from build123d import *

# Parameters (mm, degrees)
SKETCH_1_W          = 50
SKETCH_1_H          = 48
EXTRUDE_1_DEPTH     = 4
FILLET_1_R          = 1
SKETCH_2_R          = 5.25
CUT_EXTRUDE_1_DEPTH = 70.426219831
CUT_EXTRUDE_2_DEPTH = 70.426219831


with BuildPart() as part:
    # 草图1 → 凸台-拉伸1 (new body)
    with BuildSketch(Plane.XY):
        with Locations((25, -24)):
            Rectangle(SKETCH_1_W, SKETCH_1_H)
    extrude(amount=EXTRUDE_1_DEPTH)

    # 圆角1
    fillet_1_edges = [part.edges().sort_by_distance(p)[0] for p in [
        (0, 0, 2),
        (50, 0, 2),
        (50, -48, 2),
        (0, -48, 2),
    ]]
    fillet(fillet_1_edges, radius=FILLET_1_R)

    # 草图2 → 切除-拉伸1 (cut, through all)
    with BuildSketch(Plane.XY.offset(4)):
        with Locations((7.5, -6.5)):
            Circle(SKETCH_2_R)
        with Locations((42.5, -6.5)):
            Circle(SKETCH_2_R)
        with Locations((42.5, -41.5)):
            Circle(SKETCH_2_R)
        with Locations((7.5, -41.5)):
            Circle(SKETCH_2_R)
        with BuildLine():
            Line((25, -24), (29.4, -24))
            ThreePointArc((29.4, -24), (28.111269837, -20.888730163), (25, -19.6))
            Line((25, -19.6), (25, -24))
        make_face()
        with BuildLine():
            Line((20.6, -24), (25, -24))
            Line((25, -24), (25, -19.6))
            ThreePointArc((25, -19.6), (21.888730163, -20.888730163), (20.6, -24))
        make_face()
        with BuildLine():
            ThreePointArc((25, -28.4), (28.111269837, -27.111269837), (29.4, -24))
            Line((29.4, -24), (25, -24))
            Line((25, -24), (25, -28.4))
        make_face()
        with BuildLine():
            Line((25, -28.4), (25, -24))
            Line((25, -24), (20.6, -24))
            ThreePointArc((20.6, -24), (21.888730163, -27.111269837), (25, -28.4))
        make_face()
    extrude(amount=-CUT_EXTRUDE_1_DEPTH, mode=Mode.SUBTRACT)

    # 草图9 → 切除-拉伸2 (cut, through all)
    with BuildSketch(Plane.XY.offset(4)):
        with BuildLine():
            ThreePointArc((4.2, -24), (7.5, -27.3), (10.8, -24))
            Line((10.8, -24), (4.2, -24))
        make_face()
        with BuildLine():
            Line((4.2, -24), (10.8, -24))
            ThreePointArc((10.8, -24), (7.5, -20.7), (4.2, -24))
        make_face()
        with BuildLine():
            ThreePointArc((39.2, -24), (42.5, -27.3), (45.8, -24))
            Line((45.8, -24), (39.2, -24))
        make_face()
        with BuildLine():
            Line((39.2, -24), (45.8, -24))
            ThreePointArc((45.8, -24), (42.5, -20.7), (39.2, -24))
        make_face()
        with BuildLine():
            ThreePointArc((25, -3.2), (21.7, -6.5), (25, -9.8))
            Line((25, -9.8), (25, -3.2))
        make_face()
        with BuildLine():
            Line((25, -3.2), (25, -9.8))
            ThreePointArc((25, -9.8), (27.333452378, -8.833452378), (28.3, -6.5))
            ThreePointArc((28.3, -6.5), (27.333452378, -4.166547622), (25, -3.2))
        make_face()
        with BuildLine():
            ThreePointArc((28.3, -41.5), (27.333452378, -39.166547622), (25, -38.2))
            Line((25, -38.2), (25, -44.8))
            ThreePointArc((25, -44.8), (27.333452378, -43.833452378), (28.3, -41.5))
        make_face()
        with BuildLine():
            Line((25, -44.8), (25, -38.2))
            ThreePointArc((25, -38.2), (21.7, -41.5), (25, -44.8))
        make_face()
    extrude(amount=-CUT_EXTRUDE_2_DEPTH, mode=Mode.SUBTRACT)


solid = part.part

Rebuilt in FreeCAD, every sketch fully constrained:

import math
import FreeCAD as App
import Part
import Sketcher

V = App.Vector


def edges_at(feature, points):
    """Names of the edges that pass closest to the given points."""
    edges = feature.Shape.Edges
    near = lambda p: min(range(len(edges)), key=lambda i: edges[i].distToShape(Part.Vertex(*p))[0])
    return sorted({f"Edge{near(p) + 1}" for p in points})


def add_polygon(sketch, points):
    """Adds a closed chain of lines whose ends are joined by coincident constraints."""
    first, n = sketch.GeometryCount, len(points)
    for a, b in zip(points, points[1:] + points[:1]):
        sketch.addGeometry(Part.LineSegment(App.Vector(*a, 0), App.Vector(*b, 0)), False)
    for i in range(n):
        sketch.addConstraint(Sketcher.Constraint("Coincident", first + i, 2, first + (i + 1) % n, 1))

doc = App.newDocument("Part")
body = doc.addObject("PartDesign::Body", "Body")

# Sketch on XY plane
sketch1 = body.newObject("Sketcher::SketchObject", "Sketch")
sketch1.AttachmentSupport = (doc.getObject("XY_Plane"), [""])
sketch1.MapMode = "FlatFace"
add_polygon(sketch1, [(0, 0), (0, -48), (50, -48), (50, 0)])  # lines 0-3
sketch1.addConstraint([
    Sketcher.Constraint("Vertical", 0),
    Sketcher.Constraint("Horizontal", 1),
    Sketcher.Constraint("Vertical", 2),
    Sketcher.Constraint("Horizontal", 3),
    Sketcher.Constraint("Coincident", 3, 2, -1, 1),
    Sketcher.Constraint("DistanceX", 1, 1, 1, 2, 50.0),
    Sketcher.Constraint("DistanceY", 0, 2, 0, 1, 48.0),
])
pad1 = body.newObject("PartDesign::Pad", "Pad")
pad1.Profile = sketch1
pad1.Length = 4
doc.recompute()

fillet = body.newObject("PartDesign::Fillet", "Fillet")
fillet.Base = (pad1, edges_at(pad1, [
    (0, 0, 2),
    (50, 0, 2),
    (50, -48, 2),
    (0, -48, 2),
]))
fillet.Radius = 1

# Sketch on XY plane
sketch2 = body.newObject("Sketcher::SketchObject", "Sketch001")
sketch2.AttachmentSupport = (doc.getObject("XY_Plane"), [""])
sketch2.MapMode = "FlatFace"
sketch2.AttachmentOffset = App.Placement(V(0, 0, 4), App.Rotation())
sketch2.addGeometry([
    Part.Circle(V(7.5, -6.5, 0), V(0, 0, 1), 5.2),  # 0
    Part.Circle(V(42.5, -6.5, 0), V(0, 0, 1), 5.2),  # 1
    Part.Circle(V(42.5, -41.5, 0), V(0, 0, 1), 5.2),  # 2
    Part.Circle(V(7.5, -41.5, 0), V(0, 0, 1), 5.2),  # 3
    Part.ArcOfCircle(Part.Circle(V(25, -24, 0), V(0, 0, 1), 4.4), math.radians(0), math.radians(90)),  # 4
    Part.ArcOfCircle(Part.Circle(V(25, -24, 0), V(0, 0, 1), 4.4), math.radians(90), math.radians(180)),  # 5
    Part.ArcOfCircle(Part.Circle(V(25, -24, 0), V(0, 0, 1), 4.4), math.radians(-180), math.radians(-90)),  # 6
    Part.ArcOfCircle(Part.Circle(V(25, -24, 0), V(0, 0, 1), 4.4), math.radians(-90), math.radians(0)),  # 7
], False)
sketch2.addConstraint([
    Sketcher.Constraint("Tangent", 4, 2, 5, 1),
    Sketcher.Constraint("Tangent", 5, 2, 6, 1),
    Sketcher.Constraint("Tangent", 6, 2, 7, 1),
    Sketcher.Constraint("Tangent", 7, 2, 4, 1),
    Sketcher.Constraint("Equal", 0, 1),
    Sketcher.Constraint("Equal", 1, 2),
    Sketcher.Constraint("Equal", 2, 3),
    Sketcher.Constraint("Equal", 4, 5),
    Sketcher.Constraint("Horizontal", 0, 3, 1, 3),
    Sketcher.Constraint("Horizontal", 2, 3, 3, 3),
    Sketcher.Constraint("Horizontal", 7, 3, 5, 2),
    Sketcher.Constraint("Horizontal", 5, 2, 7, 2),
    Sketcher.Constraint("Vertical", 1, 3, 2, 3),
    Sketcher.Constraint("Vertical", 0, 3, 3, 3),
    Sketcher.Constraint("Vertical", 7, 3, 4, 2),
    Sketcher.Constraint("Vertical", 4, 2, 6, 2),
    Sketcher.Constraint("Diameter", 0, 10.5),
    Sketcher.Constraint("Radius", 4, 4.4),
    Sketcher.Constraint("DistanceX", -1, 1, 4, 3, 25.0),
    Sketcher.Constraint("DistanceY", 4, 3, -1, 1, 24.0),
    Sketcher.Constraint("DistanceX", 0, 3, 1, 3, 35.0),
    Sketcher.Constraint("DistanceY", 2, 3, 1, 3, 35.0),
    Sketcher.Constraint("DistanceX", -1, 1, 0, 3, 7.5),
    Sketcher.Constraint("DistanceY", 0, 3, -1, 1, 6.5),
])
pocket1 = body.newObject("PartDesign::Pocket", "Pocket")
pocket1.Profile = sketch2
pocket1.Type = "ThroughAll"

# Sketch on XY plane
sketch3 = body.newObject("Sketcher::SketchObject", "Sketch002")
sketch3.AttachmentSupport = (doc.getObject("XY_Plane"), [""])
sketch3.MapMode = "FlatFace"
sketch3.AttachmentOffset = App.Placement(V(0, 0, 4), App.Rotation())
sketch3.addGeometry([
    Part.Circle(V(7.5, -24, 0), V(0, 0, 1), 3.3),  # 0
    Part.Circle(V(42.5, -24, 0), V(0, 0, 1), 3.3),  # 1
    Part.ArcOfCircle(Part.Circle(V(25, -6.5, 0), V(0, 0, 1), 3.3), math.radians(90), math.radians(270)),  # 2
    Part.ArcOfCircle(Part.Circle(V(25, -6.5, 0), V(0, 0, 1), 3.3), math.radians(-90), math.radians(0)),  # 3
    Part.ArcOfCircle(Part.Circle(V(25, -6.5, 0), V(0, 0, 1), 3.3), math.radians(0), math.radians(90)),  # 4
    Part.ArcOfCircle(Part.Circle(V(25, -41.5, 0), V(0, 0, 1), 3.3), math.radians(0), math.radians(90)),  # 5
    Part.ArcOfCircle(Part.Circle(V(25, -41.5, 0), V(0, 0, 1), 3.3), math.radians(90), math.radians(270)),  # 6
    Part.ArcOfCircle(Part.Circle(V(25, -41.5, 0), V(0, 0, 1), 3.3), math.radians(-90), math.radians(0)),  # 7
], False)
sketch3.addConstraint([
    Sketcher.Constraint("Tangent", 2, 2, 3, 1),
    Sketcher.Constraint("Tangent", 3, 2, 4, 1),
    Sketcher.Constraint("Tangent", 4, 2, 2, 1),
    Sketcher.Constraint("Tangent", 5, 2, 6, 1),
    Sketcher.Constraint("Tangent", 6, 2, 7, 1),
    Sketcher.Constraint("Tangent", 7, 2, 5, 1),
    Sketcher.Constraint("Equal", 0, 1),
    Sketcher.Constraint("Equal", 1, 2),
    Sketcher.Constraint("Equal", 4, 5),
    Sketcher.Constraint("Horizontal", 0, 3, 1, 3),
    Sketcher.Constraint("Horizontal", 4, 3, 3, 2),
    Sketcher.Constraint("Horizontal", 6, 3, 7, 2),
    Sketcher.Constraint("Vertical", 4, 3, 5, 3),
    Sketcher.Constraint("Vertical", 7, 3, 2, 2),
    Sketcher.Constraint("Vertical", 2, 2, 4, 2),
    Sketcher.Constraint("Vertical", 4, 2, 5, 2),
    Sketcher.Constraint("Vertical", 5, 2, 6, 2),
    Sketcher.Constraint("Diameter", 0, 6.6),
    Sketcher.Constraint("DistanceY", 0, 3, -1, 1, 24.0),
    Sketcher.Constraint("DistanceX", -1, 1, 2, 3, 25.0),
    Sketcher.Constraint("DistanceX", 0, 3, 1, 3, 35.0),
    Sketcher.Constraint("DistanceY", 5, 3, 2, 3, 35.0),
    Sketcher.Constraint("DistanceX", -1, 1, 0, 3, 7.5),
    Sketcher.Constraint("DistanceY", 2, 3, -1, 1, 6.5),
])
pocket2 = body.newObject("PartDesign::Pocket", "Pocket001")
pocket2.Profile = sketch3
pocket2.Type = "ThroughAll"

doc.recompute()
